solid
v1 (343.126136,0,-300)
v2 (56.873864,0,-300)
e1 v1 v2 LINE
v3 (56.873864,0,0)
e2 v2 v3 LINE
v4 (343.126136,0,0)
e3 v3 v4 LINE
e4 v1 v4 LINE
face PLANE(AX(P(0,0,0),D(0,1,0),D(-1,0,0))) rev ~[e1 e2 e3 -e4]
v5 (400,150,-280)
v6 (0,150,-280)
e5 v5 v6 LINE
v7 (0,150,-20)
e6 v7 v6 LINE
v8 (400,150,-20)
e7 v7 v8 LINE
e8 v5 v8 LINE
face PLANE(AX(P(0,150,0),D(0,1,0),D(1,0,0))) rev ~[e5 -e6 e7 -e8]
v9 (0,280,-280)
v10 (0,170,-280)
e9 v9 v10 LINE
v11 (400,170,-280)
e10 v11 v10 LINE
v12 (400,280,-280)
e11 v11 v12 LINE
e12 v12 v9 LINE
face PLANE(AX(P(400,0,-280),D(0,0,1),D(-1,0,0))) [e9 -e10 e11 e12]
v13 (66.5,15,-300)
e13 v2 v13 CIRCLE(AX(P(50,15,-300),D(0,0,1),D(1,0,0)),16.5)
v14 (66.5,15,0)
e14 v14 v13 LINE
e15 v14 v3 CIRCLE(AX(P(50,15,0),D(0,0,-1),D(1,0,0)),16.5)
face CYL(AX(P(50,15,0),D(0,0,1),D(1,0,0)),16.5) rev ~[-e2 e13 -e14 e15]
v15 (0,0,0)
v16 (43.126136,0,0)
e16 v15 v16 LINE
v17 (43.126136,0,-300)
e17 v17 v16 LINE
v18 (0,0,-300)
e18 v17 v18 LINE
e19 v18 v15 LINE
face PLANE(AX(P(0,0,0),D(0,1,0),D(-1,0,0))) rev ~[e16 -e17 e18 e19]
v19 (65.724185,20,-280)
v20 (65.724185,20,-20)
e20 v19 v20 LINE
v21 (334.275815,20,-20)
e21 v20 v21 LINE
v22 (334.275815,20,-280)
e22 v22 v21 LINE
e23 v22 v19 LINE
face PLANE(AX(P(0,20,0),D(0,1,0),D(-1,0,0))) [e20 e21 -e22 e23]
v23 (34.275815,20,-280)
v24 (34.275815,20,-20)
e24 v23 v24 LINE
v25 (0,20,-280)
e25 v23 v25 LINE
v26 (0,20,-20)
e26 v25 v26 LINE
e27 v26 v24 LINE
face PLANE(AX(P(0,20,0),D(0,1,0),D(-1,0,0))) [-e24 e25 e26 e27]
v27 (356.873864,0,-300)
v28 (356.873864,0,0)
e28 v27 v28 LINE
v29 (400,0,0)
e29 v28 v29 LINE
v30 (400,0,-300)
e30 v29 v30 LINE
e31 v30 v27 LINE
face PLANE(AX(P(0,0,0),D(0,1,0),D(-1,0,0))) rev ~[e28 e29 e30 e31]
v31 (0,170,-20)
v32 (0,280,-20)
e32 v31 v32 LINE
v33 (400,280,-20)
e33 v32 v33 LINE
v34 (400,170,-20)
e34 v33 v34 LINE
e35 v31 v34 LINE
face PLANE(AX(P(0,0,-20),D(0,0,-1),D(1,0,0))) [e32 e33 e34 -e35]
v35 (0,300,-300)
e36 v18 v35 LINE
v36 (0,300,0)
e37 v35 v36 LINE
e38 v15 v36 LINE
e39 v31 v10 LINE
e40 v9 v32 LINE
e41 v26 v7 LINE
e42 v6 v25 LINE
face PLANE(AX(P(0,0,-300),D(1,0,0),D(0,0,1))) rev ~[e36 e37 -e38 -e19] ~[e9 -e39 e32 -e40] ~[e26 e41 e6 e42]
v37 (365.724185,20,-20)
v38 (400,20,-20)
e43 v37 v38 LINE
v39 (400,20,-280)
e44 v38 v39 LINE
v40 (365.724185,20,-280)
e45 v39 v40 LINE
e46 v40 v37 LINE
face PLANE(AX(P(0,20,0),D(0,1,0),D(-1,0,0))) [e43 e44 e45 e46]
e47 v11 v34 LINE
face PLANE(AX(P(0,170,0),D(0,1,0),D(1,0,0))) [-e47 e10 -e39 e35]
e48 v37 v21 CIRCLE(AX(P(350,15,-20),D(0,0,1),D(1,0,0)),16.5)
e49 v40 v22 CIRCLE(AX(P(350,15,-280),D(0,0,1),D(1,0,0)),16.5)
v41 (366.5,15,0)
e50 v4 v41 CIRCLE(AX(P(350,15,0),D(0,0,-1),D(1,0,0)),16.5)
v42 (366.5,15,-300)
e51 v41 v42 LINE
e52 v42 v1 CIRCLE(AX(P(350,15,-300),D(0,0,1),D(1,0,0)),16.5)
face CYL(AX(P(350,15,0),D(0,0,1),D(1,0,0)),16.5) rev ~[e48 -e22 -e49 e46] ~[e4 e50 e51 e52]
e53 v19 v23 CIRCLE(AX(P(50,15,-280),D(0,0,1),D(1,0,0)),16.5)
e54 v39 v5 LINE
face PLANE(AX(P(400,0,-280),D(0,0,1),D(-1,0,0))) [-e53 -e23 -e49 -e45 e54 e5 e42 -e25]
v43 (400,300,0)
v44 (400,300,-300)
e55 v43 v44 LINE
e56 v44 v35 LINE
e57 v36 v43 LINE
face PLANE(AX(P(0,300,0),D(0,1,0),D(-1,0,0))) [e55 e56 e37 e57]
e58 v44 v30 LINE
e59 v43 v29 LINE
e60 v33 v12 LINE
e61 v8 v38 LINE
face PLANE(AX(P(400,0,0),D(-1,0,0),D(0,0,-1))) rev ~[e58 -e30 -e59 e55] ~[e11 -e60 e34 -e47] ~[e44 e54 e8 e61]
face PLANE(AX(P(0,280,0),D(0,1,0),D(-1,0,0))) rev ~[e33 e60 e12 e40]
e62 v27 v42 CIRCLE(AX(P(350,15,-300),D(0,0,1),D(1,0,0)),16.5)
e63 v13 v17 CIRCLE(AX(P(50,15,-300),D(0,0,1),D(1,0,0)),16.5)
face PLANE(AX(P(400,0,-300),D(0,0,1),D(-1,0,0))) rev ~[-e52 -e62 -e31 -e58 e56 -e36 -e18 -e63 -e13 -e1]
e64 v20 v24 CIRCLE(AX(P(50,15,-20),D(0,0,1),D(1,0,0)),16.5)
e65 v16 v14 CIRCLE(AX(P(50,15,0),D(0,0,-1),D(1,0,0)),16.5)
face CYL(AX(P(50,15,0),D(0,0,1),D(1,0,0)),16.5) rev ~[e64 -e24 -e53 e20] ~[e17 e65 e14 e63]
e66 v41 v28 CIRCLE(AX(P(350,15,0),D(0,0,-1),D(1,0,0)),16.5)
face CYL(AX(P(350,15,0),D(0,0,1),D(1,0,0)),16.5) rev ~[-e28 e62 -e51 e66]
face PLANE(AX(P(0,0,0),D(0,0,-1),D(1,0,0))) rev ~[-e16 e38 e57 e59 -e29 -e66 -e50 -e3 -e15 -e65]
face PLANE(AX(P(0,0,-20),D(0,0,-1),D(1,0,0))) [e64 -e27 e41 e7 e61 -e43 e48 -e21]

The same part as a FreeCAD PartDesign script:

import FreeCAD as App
import Part
import Sketcher

V = App.Vector
Q = App.Units.Quantity


def faces_at(feature, points):
    """Names of the faces that lie closest to the given points."""
    faces = feature.Shape.Faces
    near = lambda p: min(range(len(faces)), key=lambda i: faces[i].distToShape(Part.Vertex(*p))[0])
    return sorted({f"Face{near(p) + 1}" for p in points})


def add_polygon(sketch, points):
    """Adds a closed chain of lines whose ends are joined by coincident constraints."""
    first, n = sketch.GeometryCount, len(points)
    for a, b in zip(points, points[1:] + points[:1]):
        sketch.addGeometry(Part.LineSegment(App.Vector(*a, 0), App.Vector(*b, 0)), False)
    for i in range(n):
        sketch.addConstraint(Sketcher.Constraint("Coincident", first + i, 2, first + (i + 1) % n, 1))

doc = App.newDocument("Part")
body = doc.addObject("PartDesign::Body", "Body")

sketch1 = body.newObject("Sketcher::SketchObject", "Sketch")
sketch1.AttachmentSupport = (doc.getObject("XZ_Plane"), [""])
sketch1.MapMode = "FlatFace"
add_polygon(sketch1, [(0, -300), (0, 0), (400, 0), (400, -300)])
sketch1.addConstraint([
    Sketcher.Constraint("Vertical", 0),
    Sketcher.Constraint("Horizontal", 1),
    Sketcher.Constraint("Vertical", 2),
    Sketcher.Constraint("Horizontal", 3),
    Sketcher.Constraint("Coincident", 0, 2, -1, 1),
    Sketcher.Constraint("DistanceX", 1, 1, 1, 2, Q("400 mm")),
    Sketcher.Constraint("DistanceY", 0, 1, 0, 2, Q("300 mm")),
])
pad1 = body.newObject("PartDesign::Pad", "Pad")
pad1.Profile = sketch1
pad1.Length = 300
pad1.Reversed = True
doc.recompute()

thickness = body.newObject("PartDesign::Thickness", "Thickness")
thickness.Base = (pad1, faces_at(pad1, [(0, 100, -200), (400, 100, -100)]))
thickness.Value = 20
thickness.Reversed = True
thickness.Join = "Intersection"

sketch2 = body.newObject("Sketcher::SketchObject", "Sketch001")
sketch2.AttachmentSupport = (doc.getObject("XY_Plane"), [""])
sketch2.MapMode = "FlatFace"
sketch2.addGeometry([
    Part.Circle(V(50, 15, 0), V(0, 0, 1), 16),
    Part.Circle(V(350, 15, 0), V(0, 0, 1), 16),
], False)
sketch2.addConstraint([
    Sketcher.Constraint("Equal", 0, 1),
    Sketcher.Constraint("Horizontal", 0, 3, 1, 3),
    Sketcher.Constraint("Diameter", 0, Q("33 mm")),
    Sketcher.Constraint("DistanceY", -1, 1, 0, 3, Q("15 mm")),
    Sketcher.Constraint("DistanceX", -1, 1, 0, 3, Q("50 mm")),
    Sketcher.Constraint("DistanceX", -1, 1, 1, 3, Q("350 mm")),
])
pocket1 = body.newObject("PartDesign::Pocket", "Pocket")
pocket1.Profile = sketch2
pocket1.Type = "ThroughAll"

sketch3 = body.newObject("Sketcher::SketchObject", "Sketch002")
sketch3.AttachmentSupport = (doc.getObject("XZ_Plane"), [""])
sketch3.MapMode = "FlatFace"
sketch3.AttachmentOffset = App.Placement(V(0, 0, -160), App.Rotation())
add_polygon(sketch3, [(400, 0), (400, -300), (0, -300), (0, 0)])
sketch3.addConstraint([
    Sketcher.Constraint("Vertical", 0),
    Sketcher.Constraint("Horizontal", 1),
    Sketcher.Constraint("Vertical", 2),
    Sketcher.Constraint("Horizontal", 3),
    Sketcher.Constraint("Coincident", 2, 2, -1, 1),
    Sketcher.Constraint("DistanceX", 1, 2, 1, 1, Q("400 mm")),
    Sketcher.Constraint("DistanceY", 0, 2, 0, 1, Q("300 mm")),
])
pad2 = body.newObject("PartDesign::Pad", "Pad001")
pad2.Profile = sketch3
pad2.Length = 20
pad2.Midplane = True

doc.recompute()
